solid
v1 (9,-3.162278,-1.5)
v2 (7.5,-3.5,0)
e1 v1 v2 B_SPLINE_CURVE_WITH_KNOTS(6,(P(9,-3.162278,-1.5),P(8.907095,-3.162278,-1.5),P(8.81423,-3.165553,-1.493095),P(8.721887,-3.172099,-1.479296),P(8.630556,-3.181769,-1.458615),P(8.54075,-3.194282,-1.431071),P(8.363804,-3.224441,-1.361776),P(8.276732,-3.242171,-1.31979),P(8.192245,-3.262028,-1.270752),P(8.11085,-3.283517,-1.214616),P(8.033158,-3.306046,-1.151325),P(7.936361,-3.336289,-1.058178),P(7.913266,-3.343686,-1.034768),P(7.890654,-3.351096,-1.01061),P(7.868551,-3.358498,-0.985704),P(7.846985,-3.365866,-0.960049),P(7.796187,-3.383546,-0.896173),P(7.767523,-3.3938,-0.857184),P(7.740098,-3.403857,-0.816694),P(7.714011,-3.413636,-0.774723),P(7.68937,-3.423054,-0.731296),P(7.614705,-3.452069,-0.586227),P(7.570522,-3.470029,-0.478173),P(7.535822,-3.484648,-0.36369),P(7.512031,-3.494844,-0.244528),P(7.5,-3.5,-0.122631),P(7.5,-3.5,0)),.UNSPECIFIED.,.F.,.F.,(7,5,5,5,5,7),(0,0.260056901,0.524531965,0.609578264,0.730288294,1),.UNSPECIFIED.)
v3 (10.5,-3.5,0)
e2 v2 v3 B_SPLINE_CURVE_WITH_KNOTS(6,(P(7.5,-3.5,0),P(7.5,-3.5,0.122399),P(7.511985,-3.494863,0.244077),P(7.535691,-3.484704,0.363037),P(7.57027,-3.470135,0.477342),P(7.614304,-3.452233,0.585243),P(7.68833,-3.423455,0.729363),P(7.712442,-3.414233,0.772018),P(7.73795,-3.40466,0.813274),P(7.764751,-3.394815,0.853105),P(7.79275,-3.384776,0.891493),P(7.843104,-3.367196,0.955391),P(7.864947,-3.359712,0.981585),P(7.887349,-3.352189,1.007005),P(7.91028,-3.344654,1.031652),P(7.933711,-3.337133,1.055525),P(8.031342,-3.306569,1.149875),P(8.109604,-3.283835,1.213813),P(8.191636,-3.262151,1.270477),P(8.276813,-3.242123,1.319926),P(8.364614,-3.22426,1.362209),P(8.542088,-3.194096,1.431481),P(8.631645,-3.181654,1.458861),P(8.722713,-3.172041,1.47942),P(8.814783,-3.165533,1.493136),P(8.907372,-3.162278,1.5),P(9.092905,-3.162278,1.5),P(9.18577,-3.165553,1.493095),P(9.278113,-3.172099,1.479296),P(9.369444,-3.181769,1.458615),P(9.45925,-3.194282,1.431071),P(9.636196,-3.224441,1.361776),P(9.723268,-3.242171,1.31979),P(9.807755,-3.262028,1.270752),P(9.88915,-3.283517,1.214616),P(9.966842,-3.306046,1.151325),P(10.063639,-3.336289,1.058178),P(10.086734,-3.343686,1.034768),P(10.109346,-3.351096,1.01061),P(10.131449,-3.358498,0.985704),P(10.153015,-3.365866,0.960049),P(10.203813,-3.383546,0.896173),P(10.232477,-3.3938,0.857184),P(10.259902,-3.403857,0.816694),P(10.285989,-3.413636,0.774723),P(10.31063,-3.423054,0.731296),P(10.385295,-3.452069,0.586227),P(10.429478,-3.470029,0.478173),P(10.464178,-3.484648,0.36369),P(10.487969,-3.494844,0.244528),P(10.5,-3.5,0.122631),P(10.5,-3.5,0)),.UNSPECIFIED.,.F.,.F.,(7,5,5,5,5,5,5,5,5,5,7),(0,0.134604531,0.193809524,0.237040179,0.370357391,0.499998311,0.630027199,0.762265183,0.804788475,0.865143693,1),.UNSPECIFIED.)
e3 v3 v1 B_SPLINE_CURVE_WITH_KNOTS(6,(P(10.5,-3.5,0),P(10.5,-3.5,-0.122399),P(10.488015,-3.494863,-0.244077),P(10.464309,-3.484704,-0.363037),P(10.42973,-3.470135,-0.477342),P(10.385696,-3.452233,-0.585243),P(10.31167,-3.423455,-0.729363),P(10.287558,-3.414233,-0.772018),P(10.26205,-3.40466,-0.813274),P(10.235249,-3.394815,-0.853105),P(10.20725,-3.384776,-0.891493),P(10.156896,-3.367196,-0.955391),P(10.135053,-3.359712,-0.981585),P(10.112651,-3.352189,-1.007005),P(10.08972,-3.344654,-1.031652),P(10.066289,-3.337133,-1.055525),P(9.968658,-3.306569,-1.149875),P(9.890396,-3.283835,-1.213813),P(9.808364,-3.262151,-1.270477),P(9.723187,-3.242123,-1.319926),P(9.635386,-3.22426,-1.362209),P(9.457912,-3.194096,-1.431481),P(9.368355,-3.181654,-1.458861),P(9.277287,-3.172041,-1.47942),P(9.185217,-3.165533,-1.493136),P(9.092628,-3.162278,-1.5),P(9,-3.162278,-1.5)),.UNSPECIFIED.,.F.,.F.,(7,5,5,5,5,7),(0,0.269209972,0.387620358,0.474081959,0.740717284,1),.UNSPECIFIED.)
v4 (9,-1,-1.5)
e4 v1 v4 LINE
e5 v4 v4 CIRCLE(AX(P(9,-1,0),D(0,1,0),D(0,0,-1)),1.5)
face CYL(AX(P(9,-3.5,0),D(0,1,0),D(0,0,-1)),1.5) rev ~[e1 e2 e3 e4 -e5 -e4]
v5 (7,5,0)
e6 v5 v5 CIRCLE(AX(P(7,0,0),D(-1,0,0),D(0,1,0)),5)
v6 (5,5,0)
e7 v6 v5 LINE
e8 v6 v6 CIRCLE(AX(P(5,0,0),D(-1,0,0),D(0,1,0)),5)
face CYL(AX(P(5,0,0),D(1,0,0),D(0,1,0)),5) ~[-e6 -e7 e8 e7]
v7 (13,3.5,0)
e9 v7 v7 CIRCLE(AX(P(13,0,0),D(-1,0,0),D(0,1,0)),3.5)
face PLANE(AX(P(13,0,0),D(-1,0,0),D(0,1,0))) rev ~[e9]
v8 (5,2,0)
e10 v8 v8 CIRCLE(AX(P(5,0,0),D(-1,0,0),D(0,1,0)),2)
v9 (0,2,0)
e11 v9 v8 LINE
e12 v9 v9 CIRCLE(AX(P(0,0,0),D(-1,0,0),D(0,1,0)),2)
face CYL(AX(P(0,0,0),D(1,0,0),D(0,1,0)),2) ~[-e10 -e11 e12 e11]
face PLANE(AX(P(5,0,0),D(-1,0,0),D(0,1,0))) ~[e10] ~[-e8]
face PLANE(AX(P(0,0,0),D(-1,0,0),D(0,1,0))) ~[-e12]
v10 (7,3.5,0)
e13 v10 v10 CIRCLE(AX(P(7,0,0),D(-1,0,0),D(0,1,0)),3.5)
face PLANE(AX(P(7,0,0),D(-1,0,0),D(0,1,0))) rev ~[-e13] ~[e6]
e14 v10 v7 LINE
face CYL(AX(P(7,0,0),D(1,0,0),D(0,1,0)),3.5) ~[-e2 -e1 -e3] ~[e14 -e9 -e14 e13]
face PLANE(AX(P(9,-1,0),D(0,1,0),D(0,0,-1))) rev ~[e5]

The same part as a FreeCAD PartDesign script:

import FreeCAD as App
import Part
import Sketcher

V = App.Vector
Q = App.Units.Quantity

doc = App.newDocument("Part")
params = doc.addObject("Spreadsheet::Sheet", "Params")
for row, (alias, value) in enumerate([
    ("sketch1_width", "6 mm"),
    ("sketch1_width2", "2 mm"),
    ("sketch1_width3", "5 mm"),
    ("sketch1_height", "3.5 mm"),
    ("revolution_angle", "360 deg"),
    ("sketch2_diameter", "3 mm"),
    ("hole_diameter", "3 mm"),
    ("hole_depth", "2.5 mm"),
], start=1):
    params.set(f"A{row}", alias)
    params.set(f"B{row}", "=" + value)
    params.setAlias(f"B{row}", alias)

body = doc.addObject("PartDesign::Body", "Body")

# Sketch on XY plane
sketch1 = doc.addObject("Sketcher::SketchObject", "Sketch")
body.addObject(sketch1)
sketch1.AttachmentSupport = (doc.XY_Plane, [""])
sketch1.MapMode = "FlatFace"
sketch1.addGeometry(Part.LineSegment(V(0, 2, 0), V(0, 0, 0)), False)
sketch1.addGeometry(Part.LineSegment(V(0, 0, 0), V(13, 0, 0)), False)
sketch1.addGeometry(Part.LineSegment(V(13, 0, 0), V(13, 3.5, 0)), False)
sketch1.addGeometry(Part.LineSegment(V(13, 3.5, 0), V(7, 3.5, 0)), False)
sketch1.addGeometry(Part.LineSegment(V(7, 3.5, 0), V(7, 5, 0)), False)
sketch1.addGeometry(Part.LineSegment(V(7, 5, 0), V(5, 5, 0)), False)
sketch1.addGeometry(Part.LineSegment(V(5, 5, 0), V(5, 2, 0)), False)
sketch1.addGeometry(Part.LineSegment(V(5, 2, 0), V(0, 2, 0)), False)
sketch1.addConstraint(Sketcher.Constraint("Coincident", 0, 2, 1, 1))
sketch1.addConstraint(Sketcher.Constraint("Coincident", 1, 2, 2, 1))
sketch1.addConstraint(Sketcher.Constraint("Coincident", 2, 2, 3, 1))
sketch1.addConstraint(Sketcher.Constraint("Coincident", 3, 2, 4, 1))
sketch1.addConstraint(Sketcher.Constraint("Coincident", 4, 2, 5, 1))
sketch1.addConstraint(Sketcher.Constraint("Coincident", 5, 2, 6, 1))
sketch1.addConstraint(Sketcher.Constraint("Coincident", 6, 2, 7, 1))
sketch1.addConstraint(Sketcher.Constraint("Coincident", 7, 2, 0, 1))
sketch1.addConstraint(Sketcher.Constraint("Vertical", 0))
sketch1.addConstraint(Sketcher.Constraint("Horizontal", 1))
sketch1.addConstraint(Sketcher.Constraint("Vertical", 2))
sketch1.addConstraint(Sketcher.Constraint("Horizontal", 3))
sketch1.addConstraint(Sketcher.Constraint("Vertical", 4))
sketch1.addConstraint(Sketcher.Constraint("Horizontal", 5))
sketch1.addConstraint(Sketcher.Constraint("Vertical", 6))
sketch1.addConstraint(Sketcher.Constraint("Horizontal", 7))
sketch1.addConstraint(Sketcher.Constraint("Coincident", 0, 2, -1, 1))
sketch1.addConstraint(Sketcher.Constraint("Equal", 5, 0))
sketch1.addConstraint(Sketcher.Constraint("DistanceX", 3, 2, 3, 1, Q("6 mm")))
sketch1.addConstraint(Sketcher.Constraint("DistanceX", 5, 2, 5, 1, Q("2 mm")))
sketch1.addConstraint(Sketcher.Constraint("DistanceX", 7, 2, 7, 1, Q("5 mm")))
sketch1.addConstraint(Sketcher.Constraint("DistanceY", -1, 1, 4, 2, Q("5 mm")))
sketch1.addConstraint(Sketcher.Constraint("DistanceY", 2, 1, 2, 2, Q("3.5 mm")))
sketch1.setExpression("Constraints[18]", "Params.sketch1_width")
sketch1.setExpression("Constraints[19]", "Params.sketch1_width2")
sketch1.setExpression("Constraints[20]", "Params.sketch1_width3")
sketch1.setExpression("Constraints[22]", "Params.sketch1_height")
revolution = doc.addObject("PartDesign::Revolution", "Revolution")
body.addObject(revolution)
revolution.Profile = sketch1
revolution.ReferenceAxis = (sketch1, ["H_Axis"])
revolution.setExpression("Angle", "Params.revolution_angle")

# Sketch on XZ plane
sketch2 = doc.addObject("Sketcher::SketchObject", "Sketch001")
body.addObject(sketch2)
sketch2.AttachmentSupport = (doc.XZ_Plane, [""])
sketch2.MapMode = "FlatFace"
sketch2.AttachmentOffset = App.Placement(V(0, 0, 3.5), App.Rotation())
sketch2.addGeometry(Part.Circle(V(9, 0, 0), V(0, 0, 1), 1.5), False)
sketch2.addConstraint(Sketcher.Constraint("PointOnObject", 0, 3, -1))
sketch2.addConstraint(Sketcher.Constraint("Diameter", 0, Q("3 mm")))
sketch2.addConstraint(Sketcher.Constraint("DistanceX", -1, 1, 0, 3, Q("9 mm")))
sketch2.setExpression("Constraints[1]", "Params.sketch2_diameter")
doc.recompute()
hole = doc.addObject("PartDesign::Hole", "Hole")
body.addObject(hole)
hole.Profile = sketch2
hole.ThreadType = "None"
hole.setExpression("Diameter", "Params.hole_diameter")
hole.DepthType = "Dimension"
hole.setExpression("Depth", "Params.hole_depth")
hole.DrillPoint = "Flat"

doc.recompute()
